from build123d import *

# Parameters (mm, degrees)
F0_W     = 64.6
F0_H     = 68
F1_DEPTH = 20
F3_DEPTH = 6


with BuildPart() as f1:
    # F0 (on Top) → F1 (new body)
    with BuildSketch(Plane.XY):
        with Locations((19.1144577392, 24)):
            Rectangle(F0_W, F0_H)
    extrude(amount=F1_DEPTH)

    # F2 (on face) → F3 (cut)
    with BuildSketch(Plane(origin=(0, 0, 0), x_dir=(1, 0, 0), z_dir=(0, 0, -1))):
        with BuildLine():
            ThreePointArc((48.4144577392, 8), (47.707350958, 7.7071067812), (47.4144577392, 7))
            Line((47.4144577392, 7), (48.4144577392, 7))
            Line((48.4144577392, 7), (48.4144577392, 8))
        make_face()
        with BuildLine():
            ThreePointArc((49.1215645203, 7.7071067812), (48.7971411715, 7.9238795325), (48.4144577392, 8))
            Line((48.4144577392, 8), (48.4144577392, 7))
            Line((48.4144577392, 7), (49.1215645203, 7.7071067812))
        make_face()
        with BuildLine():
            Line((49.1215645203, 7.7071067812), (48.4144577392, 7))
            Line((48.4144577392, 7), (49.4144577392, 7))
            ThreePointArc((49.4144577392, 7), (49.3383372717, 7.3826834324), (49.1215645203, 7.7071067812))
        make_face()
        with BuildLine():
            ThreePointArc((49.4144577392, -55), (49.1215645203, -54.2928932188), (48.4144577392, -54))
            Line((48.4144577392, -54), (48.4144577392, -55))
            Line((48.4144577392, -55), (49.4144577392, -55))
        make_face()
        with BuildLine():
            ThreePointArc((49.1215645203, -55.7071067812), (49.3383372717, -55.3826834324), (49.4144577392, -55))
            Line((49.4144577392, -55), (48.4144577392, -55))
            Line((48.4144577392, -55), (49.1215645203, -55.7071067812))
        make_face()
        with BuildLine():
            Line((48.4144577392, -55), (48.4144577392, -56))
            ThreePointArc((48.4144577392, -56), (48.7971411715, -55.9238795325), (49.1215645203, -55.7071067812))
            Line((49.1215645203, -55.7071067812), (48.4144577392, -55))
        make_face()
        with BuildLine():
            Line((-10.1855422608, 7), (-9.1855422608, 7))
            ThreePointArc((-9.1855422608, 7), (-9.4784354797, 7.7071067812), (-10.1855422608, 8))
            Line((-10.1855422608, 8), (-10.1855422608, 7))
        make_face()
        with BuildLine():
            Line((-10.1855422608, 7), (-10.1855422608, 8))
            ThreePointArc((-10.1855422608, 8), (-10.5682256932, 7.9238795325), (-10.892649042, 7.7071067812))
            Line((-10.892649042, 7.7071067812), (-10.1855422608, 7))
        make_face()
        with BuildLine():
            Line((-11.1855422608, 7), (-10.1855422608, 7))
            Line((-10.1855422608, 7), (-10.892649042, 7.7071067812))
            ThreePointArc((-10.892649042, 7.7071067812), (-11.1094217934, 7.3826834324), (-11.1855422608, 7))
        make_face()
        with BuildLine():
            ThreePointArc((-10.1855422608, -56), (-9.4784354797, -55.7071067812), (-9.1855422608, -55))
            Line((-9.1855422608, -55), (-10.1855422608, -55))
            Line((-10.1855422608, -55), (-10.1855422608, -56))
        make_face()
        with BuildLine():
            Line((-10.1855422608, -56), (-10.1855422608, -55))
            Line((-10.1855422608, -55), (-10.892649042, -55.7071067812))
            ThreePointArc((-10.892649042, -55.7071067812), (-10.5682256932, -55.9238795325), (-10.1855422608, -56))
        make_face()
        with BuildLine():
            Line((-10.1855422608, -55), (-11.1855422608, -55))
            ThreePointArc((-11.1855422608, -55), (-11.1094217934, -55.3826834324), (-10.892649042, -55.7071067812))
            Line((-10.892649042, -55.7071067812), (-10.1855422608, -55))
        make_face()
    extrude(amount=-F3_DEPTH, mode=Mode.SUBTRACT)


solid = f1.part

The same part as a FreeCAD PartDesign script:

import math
import FreeCAD as App
import Part
import Sketcher

V = App.Vector
Q = App.Units.Quantity


def add_polygon(sketch, points):
    """Adds a closed chain of lines whose ends are joined by coincident constraints."""
    first, n = sketch.GeometryCount, len(points)
    for a, b in zip(points, points[1:] + points[:1]):
        sketch.addGeometry(Part.LineSegment(App.Vector(*a, 0), App.Vector(*b, 0)), False)
    for i in range(n):
        sketch.addConstraint(Sketcher.Constraint("Coincident", first + i, 2, first + (i + 1) % n, 1))

doc = App.newDocument("Part")
body = doc.addObject("PartDesign::Body", "Body")

# Sketch on XY plane
sketch1 = doc.addObject("Sketcher::SketchObject", "Sketch")
body.addObject(sketch1)
sketch1.AttachmentSupport = (doc.XY_Plane, [""])
sketch1.MapMode = "FlatFace"
add_polygon(sketch1, [(-13, 58), (-13, -10), (51, -10), (51, 58)])  # lines 0-3
sketch1.addConstraint([
    Sketcher.Constraint("Vertical", 0),
    Sketcher.Constraint("Horizontal", 1),
    Sketcher.Constraint("Vertical", 2),
    Sketcher.Constraint("Horizontal", 3),
    Sketcher.Constraint("DistanceY", 0, 2, 0, 1, Q("68 mm")),
    Sketcher.Constraint("DistanceX", 1, 1, 1, 2, Q("64.6 mm")),
    Sketcher.Constraint("DistanceY", 0, 2, -1, 1, Q("10 mm")),
    Sketcher.Constraint("DistanceX", 0, 2, -1, 1, Q("13.185542 mm")),
])
pad1 = doc.addObject("PartDesign::Pad", "Pad")
body.addObject(pad1)
pad1.Profile = sketch1
pad1.Length = 20

# Sketch on XY plane
sketch2 = doc.addObject("Sketcher::SketchObject", "Sketch001")
body.addObject(sketch2)
sketch2.AttachmentSupport = (doc.XY_Plane, [""])
sketch2.MapMode = "FlatFace"
sketch2.addGeometry([
    Part.ArcOfCircle(Part.Circle(V(48.4, -7, 0), V(0, 0, 1), 1), math.radians(180), math.radians(270)),  # 0
    Part.LineSegment(V(47.4, -7, 0), V(49.4, -7, 0)),  # 1
    Part.ArcOfCircle(Part.Circle(V(48.4, -7, 0), V(0, 0, 1), 1), math.radians(-45), math.radians(0)),  # 2
    Part.ArcOfCircle(Part.Circle(V(48.4, -7, 0), V(0, 0, 1), 1), math.radians(-90), math.radians(-45)),  # 3
    Part.ArcOfCircle(Part.Circle(V(48.4, 55, 0), V(0, 0, 1), 1), math.radians(-90), math.radians(0)),  # 4
    Part.LineSegment(V(48.4, 54, 0), V(48.4, 56, 0)),  # 5
    Part.ArcOfCircle(Part.Circle(V(48.4, 55, 0), V(0, 0, 1), 1), math.radians(45), math.radians(90)),  # 6
    Part.ArcOfCircle(Part.Circle(V(48.4, 55, 0), V(0, 0, 1), 1), math.radians(0), math.radians(45)),  # 7
    Part.ArcOfCircle(Part.Circle(V(-10.2, -7, 0), V(0, 0, 1), 1), math.radians(-90), math.radians(0)),  # 8
    Part.ArcOfCircle(Part.Circle(V(-10.2, -7, 0), V(0, 0, 1), 1), math.radians(-135), math.radians(-90)),  # 9
    Part.ArcOfCircle(Part.Circle(V(-10.2, -7, 0), V(0, 0, 1), 1), math.radians(180), math.radians(225)),  # 10
    Part.LineSegment(V(-11.2, -7, 0), V(-9.2, -7, 0)),  # 11
    Part.ArcOfCircle(Part.Circle(V(-10.2, 55, 0), V(0, 0, 1), 1), math.radians(0), math.radians(90)),  # 12
    Part.LineSegment(V(-9.2, 55, 0), V(-11.2, 55, 0)),  # 13
    Part.ArcOfCircle(Part.Circle(V(-10.2, 55, 0), V(0, 0, 1), 1), math.radians(135), math.radians(180)),  # 14
    Part.ArcOfCircle(Part.Circle(V(-10.2, 55, 0), V(0, 0, 1), 1), math.radians(90), math.radians(135)),  # 15
], False)
sketch2.addConstraint([
    Sketcher.Constraint("Coincident", 0, 1, 1, 1),
    Sketcher.Constraint("Coincident", 1, 2, 2, 2),
    Sketcher.Constraint("Tangent", 2, 1, 3, 2),
    Sketcher.Constraint("Tangent", 3, 1, 0, 2),
    Sketcher.Constraint("Coincident", 4, 1, 5, 1),
    Sketcher.Constraint("Coincident", 5, 2, 6, 2),
    Sketcher.Constraint("Tangent", 6, 1, 7, 2),
    Sketcher.Constraint("Tangent", 7, 1, 4, 2),
    Sketcher.Constraint("Tangent", 8, 1, 9, 2),
    Sketcher.Constraint("Tangent", 9, 1, 10, 2),
    Sketcher.Constraint("Coincident", 10, 1, 11, 1),
    Sketcher.Constraint("Coincident", 11, 2, 8, 2),
    Sketcher.Constraint("Coincident", 12, 1, 13, 1),
    Sketcher.Constraint("Coincident", 13, 2, 14, 2),
    Sketcher.Constraint("Tangent", 14, 1, 15, 2),
    Sketcher.Constraint("Tangent", 15, 1, 12, 2),
    Sketcher.Constraint("Horizontal", 1),
    Sketcher.Constraint("Vertical", 5),
    Sketcher.Constraint("Horizontal", 11),
    Sketcher.Constraint("Horizontal", 13),
    Sketcher.Constraint("Coincident", 2, 3, 0, 3),
    Sketcher.Constraint("Coincident", 6, 3, 4, 3),
    Sketcher.Constraint("Coincident", 10, 3, 8, 3),
    Sketcher.Constraint("Coincident", 14, 3, 12, 3),
    Sketcher.Constraint("Equal", 3, 4),
    Sketcher.Constraint("Equal", 7, 8),
    Sketcher.Constraint("Equal", 10, 12),
    Sketcher.Constraint("Horizontal", 3, 3, 8, 3),
    Sketcher.Constraint("Horizontal", 7, 3, 12, 3),
    Sketcher.Constraint("Horizontal", 10, 3, 0, 1),
    Sketcher.Constraint("Horizontal", 15, 3, 7, 1),
    Sketcher.Constraint("Horizontal", 2, 1, 9, 1),
    Sketcher.Constraint("Horizontal", 1, 2, 10, 1),
    Sketcher.Constraint("Horizontal", 7, 1, 12, 1),
    Sketcher.Constraint("Horizontal", 6, 1, 14, 1),
    Sketcher.Constraint("Vertical", 3, 3, 4, 3),
    Sketcher.Constraint("Vertical", 10, 3, 12, 3),
    Sketcher.Constraint("Vertical", 7, 3, 3, 1),
    Sketcher.Constraint("Vertical", 3, 1, 4, 1),
    Sketcher.Constraint("Vertical", 2, 1, 6, 1),
    Sketcher.Constraint("Vertical", 15, 3, 8, 1),
    Sketcher.Constraint("Vertical", 8, 1, 15, 1),
    Sketcher.Constraint("Radius", 0, Q("1 mm")),
    Sketcher.Constraint("DistanceY", 0, 3, -1, 1, Q("7 mm")),
    Sketcher.Constraint("DistanceY", -1, 1, 4, 3, Q("55 mm")),
    Sketcher.Constraint("DistanceX", 8, 3, 0, 3, Q("58.6 mm")),
    Sketcher.Constraint("DistanceX", 9, 1, -1, 1, Q("10.892649 mm")),
    Sketcher.Constraint("DistanceX", -1, 1, 0, 3, Q("48.414458 mm")),
])
pocket1 = doc.addObject("PartDesign::Pocket", "Pocket")
body.addObject(pocket1)
pocket1.Profile = sketch2
pocket1.Length = 6
pocket1.Reversed = True

doc.recompute()
